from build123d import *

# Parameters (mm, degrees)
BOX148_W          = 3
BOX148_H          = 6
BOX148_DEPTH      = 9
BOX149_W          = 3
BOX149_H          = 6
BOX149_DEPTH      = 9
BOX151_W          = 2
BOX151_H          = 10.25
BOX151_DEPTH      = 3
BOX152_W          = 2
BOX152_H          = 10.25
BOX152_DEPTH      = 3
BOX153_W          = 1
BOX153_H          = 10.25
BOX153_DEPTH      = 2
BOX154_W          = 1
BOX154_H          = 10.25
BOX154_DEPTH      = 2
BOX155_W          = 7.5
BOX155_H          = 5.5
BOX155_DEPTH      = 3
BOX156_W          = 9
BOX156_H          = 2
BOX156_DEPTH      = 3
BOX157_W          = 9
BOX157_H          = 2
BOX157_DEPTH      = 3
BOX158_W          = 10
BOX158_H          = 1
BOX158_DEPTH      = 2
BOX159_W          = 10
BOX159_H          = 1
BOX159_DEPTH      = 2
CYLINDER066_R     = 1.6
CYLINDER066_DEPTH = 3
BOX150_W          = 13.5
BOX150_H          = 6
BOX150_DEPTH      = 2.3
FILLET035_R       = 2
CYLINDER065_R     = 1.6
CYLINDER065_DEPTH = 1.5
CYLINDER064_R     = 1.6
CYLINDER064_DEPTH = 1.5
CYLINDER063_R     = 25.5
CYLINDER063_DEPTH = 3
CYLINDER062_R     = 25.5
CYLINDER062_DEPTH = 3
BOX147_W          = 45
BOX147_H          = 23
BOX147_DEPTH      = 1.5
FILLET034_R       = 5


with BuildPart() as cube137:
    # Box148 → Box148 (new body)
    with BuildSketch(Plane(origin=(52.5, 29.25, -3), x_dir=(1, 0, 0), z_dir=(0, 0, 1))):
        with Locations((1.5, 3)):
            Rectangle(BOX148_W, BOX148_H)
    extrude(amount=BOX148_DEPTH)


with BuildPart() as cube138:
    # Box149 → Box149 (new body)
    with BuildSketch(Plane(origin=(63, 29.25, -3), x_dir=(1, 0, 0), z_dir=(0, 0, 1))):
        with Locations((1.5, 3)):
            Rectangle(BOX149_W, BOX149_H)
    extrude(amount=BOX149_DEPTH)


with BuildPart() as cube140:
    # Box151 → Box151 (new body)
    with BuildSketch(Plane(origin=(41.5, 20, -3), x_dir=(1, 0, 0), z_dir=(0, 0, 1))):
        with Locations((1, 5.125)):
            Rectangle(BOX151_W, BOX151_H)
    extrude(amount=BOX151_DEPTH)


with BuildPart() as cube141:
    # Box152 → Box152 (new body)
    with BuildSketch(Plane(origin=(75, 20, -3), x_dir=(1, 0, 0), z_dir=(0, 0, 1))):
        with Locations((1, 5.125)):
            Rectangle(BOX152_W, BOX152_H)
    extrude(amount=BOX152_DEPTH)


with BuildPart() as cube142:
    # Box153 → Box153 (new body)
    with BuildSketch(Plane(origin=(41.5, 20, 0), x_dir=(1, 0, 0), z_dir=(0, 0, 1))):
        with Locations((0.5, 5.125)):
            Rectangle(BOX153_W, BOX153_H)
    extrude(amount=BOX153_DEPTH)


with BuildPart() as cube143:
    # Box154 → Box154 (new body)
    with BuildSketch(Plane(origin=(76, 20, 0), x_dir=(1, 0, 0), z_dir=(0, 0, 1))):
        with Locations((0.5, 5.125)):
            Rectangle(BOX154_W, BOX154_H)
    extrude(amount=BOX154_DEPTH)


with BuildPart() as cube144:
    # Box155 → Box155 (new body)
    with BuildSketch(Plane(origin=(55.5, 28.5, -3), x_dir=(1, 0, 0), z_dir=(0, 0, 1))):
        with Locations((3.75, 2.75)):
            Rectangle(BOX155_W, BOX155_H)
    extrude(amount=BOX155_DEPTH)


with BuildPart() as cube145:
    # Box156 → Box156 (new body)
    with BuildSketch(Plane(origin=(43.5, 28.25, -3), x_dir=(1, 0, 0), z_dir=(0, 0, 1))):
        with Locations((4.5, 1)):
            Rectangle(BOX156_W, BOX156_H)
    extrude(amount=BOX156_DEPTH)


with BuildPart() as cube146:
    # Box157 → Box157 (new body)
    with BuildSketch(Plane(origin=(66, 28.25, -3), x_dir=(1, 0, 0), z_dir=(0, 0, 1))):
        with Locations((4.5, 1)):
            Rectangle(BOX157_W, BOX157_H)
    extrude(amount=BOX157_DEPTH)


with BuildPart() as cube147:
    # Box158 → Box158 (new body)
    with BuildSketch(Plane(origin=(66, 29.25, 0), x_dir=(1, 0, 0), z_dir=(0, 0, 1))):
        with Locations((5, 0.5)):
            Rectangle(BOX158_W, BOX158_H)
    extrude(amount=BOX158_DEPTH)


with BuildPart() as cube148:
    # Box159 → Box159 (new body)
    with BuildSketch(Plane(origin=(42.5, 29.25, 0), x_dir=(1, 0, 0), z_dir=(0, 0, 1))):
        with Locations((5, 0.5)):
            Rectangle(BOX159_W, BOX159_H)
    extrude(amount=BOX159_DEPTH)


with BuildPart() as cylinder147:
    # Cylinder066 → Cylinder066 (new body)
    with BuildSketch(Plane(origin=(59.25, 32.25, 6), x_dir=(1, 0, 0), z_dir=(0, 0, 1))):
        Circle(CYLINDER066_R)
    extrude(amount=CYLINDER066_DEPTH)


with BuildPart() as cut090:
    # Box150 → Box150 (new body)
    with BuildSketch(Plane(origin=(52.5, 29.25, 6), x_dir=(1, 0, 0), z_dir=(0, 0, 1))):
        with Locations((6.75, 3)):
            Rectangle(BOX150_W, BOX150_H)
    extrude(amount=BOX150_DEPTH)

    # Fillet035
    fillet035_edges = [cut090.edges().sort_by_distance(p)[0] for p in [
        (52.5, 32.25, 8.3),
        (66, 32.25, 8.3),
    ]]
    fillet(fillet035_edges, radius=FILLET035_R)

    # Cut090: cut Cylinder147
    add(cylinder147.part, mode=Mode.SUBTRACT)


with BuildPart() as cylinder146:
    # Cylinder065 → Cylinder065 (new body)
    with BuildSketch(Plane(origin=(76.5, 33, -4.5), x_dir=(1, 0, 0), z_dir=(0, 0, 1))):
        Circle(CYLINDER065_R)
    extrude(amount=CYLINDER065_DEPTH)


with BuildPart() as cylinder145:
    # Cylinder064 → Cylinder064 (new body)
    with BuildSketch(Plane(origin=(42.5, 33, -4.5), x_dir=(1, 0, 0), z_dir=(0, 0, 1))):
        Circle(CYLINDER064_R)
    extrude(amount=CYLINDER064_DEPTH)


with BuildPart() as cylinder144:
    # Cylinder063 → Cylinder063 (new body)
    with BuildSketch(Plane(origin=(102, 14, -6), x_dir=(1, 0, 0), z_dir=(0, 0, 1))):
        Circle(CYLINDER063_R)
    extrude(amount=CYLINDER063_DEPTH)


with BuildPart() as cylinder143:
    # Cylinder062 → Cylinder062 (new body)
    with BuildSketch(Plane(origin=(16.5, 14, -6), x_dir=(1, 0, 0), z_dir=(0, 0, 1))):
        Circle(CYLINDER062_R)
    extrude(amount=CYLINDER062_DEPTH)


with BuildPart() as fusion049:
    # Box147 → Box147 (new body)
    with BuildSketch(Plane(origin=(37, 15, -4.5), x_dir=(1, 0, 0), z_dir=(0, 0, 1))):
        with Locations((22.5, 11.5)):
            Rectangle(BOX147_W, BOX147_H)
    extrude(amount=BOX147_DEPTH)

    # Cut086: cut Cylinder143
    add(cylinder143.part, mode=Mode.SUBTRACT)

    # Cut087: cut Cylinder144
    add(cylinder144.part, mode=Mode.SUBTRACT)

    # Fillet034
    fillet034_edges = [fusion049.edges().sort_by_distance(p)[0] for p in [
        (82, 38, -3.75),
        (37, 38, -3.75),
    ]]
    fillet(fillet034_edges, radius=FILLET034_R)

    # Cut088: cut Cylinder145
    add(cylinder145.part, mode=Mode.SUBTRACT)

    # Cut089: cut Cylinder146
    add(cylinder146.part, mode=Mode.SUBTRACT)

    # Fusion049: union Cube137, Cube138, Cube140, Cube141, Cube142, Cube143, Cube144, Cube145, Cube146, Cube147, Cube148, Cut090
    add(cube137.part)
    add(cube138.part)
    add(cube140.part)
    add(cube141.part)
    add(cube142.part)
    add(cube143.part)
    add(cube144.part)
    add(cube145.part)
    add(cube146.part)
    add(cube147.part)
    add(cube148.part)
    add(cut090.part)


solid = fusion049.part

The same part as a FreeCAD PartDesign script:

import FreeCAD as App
import Part
import Sketcher


def edges_at(feature, points):
    """Names of the edges that pass closest to the given points."""
    edges = feature.Shape.Edges
    near = lambda p: min(range(len(edges)), key=lambda i: edges[i].distToShape(Part.Vertex(*p))[0])
    return sorted({f"Edge{near(p) + 1}" for p in points})


def add_polygon(sketch, points):
    """Adds a closed chain of lines whose ends are joined by coincident constraints."""
    first, n = sketch.GeometryCount, len(points)
    for a, b in zip(points, points[1:] + points[:1]):
        sketch.addGeometry(Part.LineSegment(App.Vector(*a, 0), App.Vector(*b, 0)), False)
    for i in range(n):
        sketch.addConstraint(Sketcher.Constraint("Coincident", first + i, 2, first + (i + 1) % n, 1))

doc = App.newDocument("Part")
body = doc.addObject("PartDesign::Body", "Body")

sketch1 = body.newObject("Sketcher::SketchObject", "Sketch")
sketch1.AttachmentSupport = (doc.getObject("XY_Plane"), [""])
sketch1.MapMode = "FlatFace"
sketch1.AttachmentOffset = App.Placement(App.Vector(0, 0, -3), App.Rotation())
add_polygon(sketch1, [(52.5, 35.25), (52.5, 29.25), (55.5, 29.25), (55.5, 35.25)])
sketch1.addConstraint([
    Sketcher.Constraint("Vertical", 0),
    Sketcher.Constraint("Horizontal", 1),
    Sketcher.Constraint("Vertical", 2),
    Sketcher.Constraint("Horizontal", 3),
    Sketcher.Constraint("DistanceX", 1, 1, 1, 2, 3.0),
    Sketcher.Constraint("DistanceY", 0, 2, 0, 1, 6.0),
    Sketcher.Constraint("DistanceX", -1, 1, 0, 2, 52.5),
    Sketcher.Constraint("DistanceY", -1, 1, 0, 2, 29.25),
])
pad1 = body.newObject("PartDesign::Pad", "Pad")
pad1.Profile = sketch1
pad1.Length = 9
body2 = doc.addObject("PartDesign::Body", "Body001")

sketch2 = body2.newObject("Sketcher::SketchObject", "Sketch001")
sketch2.AttachmentSupport = (doc.getObject("XY_Plane001"), [""])
sketch2.MapMode = "FlatFace"
sketch2.AttachmentOffset = App.Placement(App.Vector(0, 0, -3), App.Rotation())
add_polygon(sketch2, [(63, 35.25), (63, 29.25), (66, 29.25), (66, 35.25)])
sketch2.addConstraint([
    Sketcher.Constraint("Vertical", 0),
    Sketcher.Constraint("Horizontal", 1),
    Sketcher.Constraint("Vertical", 2),
    Sketcher.Constraint("Horizontal", 3),
    Sketcher.Constraint("DistanceX", 1, 1, 1, 2, 3.0),
    Sketcher.Constraint("DistanceY", 0, 2, 0, 1, 6.0),
    Sketcher.Constraint("DistanceX", -1, 1, 0, 2, 63.0),
    Sketcher.Constraint("DistanceY", -1, 1, 0, 2, 29.25),
])
pad2 = body2.newObject("PartDesign::Pad", "Pad001")
pad2.Profile = sketch2
pad2.Length = 9
body3 = doc.addObject("PartDesign::Body", "Body002")

sketch3 = body3.newObject("Sketcher::SketchObject", "Sketch002")
sketch3.AttachmentSupport = (doc.getObject("XY_Plane002"), [""])
sketch3.MapMode = "FlatFace"
sketch3.AttachmentOffset = App.Placement(App.Vector(0, 0, -3), App.Rotation())
add_polygon(sketch3, [(41.5, 30.25), (41.5, 20), (43.5, 20), (43.5, 30.25)])
sketch3.addConstraint([
    Sketcher.Constraint("Vertical", 0),
    Sketcher.Constraint("Horizontal", 1),
    Sketcher.Constraint("Vertical", 2),
    Sketcher.Constraint("Horizontal", 3),
    Sketcher.Constraint("DistanceX", 1, 1, 1, 2, 2.0),
    Sketcher.Constraint("DistanceY", -1, 1, 0, 2, 20.0),
    Sketcher.Constraint("DistanceY", 0, 2, 0, 1, 10.25),
    Sketcher.Constraint("DistanceX", -1, 1, 0, 2, 41.5),
])
pad3 = body3.newObject("PartDesign::Pad", "Pad002")
pad3.Profile = sketch3
pad3.Length = 3
body4 = doc.addObject("PartDesign::Body", "Body003")

sketch4 = body4.newObject("Sketcher::SketchObject", "Sketch003")
sketch4.AttachmentSupport = (doc.getObject("XY_Plane003"), [""])
sketch4.MapMode = "FlatFace"
sketch4.AttachmentOffset = App.Placement(App.Vector(0, 0, -3), App.Rotation())
add_polygon(sketch4, [(75, 30.25), (75, 20), (77, 20), (77, 30.25)])
sketch4.addConstraint([
    Sketcher.Constraint("Vertical", 0),
    Sketcher.Constraint("Horizontal", 1),
    Sketcher.Constraint("Vertical", 2),
    Sketcher.Constraint("Horizontal", 3),
    Sketcher.Constraint("DistanceX", 1, 1, 1, 2, 2.0),
    Sketcher.Constraint("DistanceX", -1, 1, 0, 2, 75.0),
    Sketcher.Constraint("DistanceY", -1, 1, 0, 2, 20.0),
    Sketcher.Constraint("DistanceY", 0, 2, 0, 1, 10.25),
])
pad4 = body4.newObject("PartDesign::Pad", "Pad003")
pad4.Profile = sketch4
pad4.Length = 3
body5 = doc.addObject("PartDesign::Body", "Body004")

sketch5 = body5.newObject("Sketcher::SketchObject", "Sketch004")
sketch5.AttachmentSupport = (doc.getObject("XY_Plane004"), [""])
sketch5.MapMode = "FlatFace"
add_polygon(sketch5, [(41.5, 30.25), (41.5, 20), (42.5, 20), (42.5, 30.25)])
sketch5.addConstraint([
    Sketcher.Constraint("Vertical", 0),
    Sketcher.Constraint("Horizontal", 1),
    Sketcher.Constraint("Vertical", 2),
    Sketcher.Constraint("Horizontal", 3),
    Sketcher.Constraint("DistanceX", 1, 1, 1, 2, 1.0),
    Sketcher.Constraint("DistanceY", -1, 1, 0, 2, 20.0),
    Sketcher.Constraint("DistanceY", 0, 2, 0, 1, 10.25),
    Sketcher.Constraint("DistanceX", -1, 1, 0, 2, 41.5),
])
pad5 = body5.newObject("PartDesign::Pad", "Pad004")
pad5.Profile = sketch5
pad5.Length = 2
body6 = doc.addObject("PartDesign::Body", "Body005")

sketch6 = body6.newObject("Sketcher::SketchObject", "Sketch005")
sketch6.AttachmentSupport = (doc.getObject("XY_Plane005"), [""])
sketch6.MapMode = "FlatFace"
add_polygon(sketch6, [(76, 30.25), (76, 20), (77, 20), (77, 30.25)])
sketch6.addConstraint([
    Sketcher.Constraint("Vertical", 0),
    Sketcher.Constraint("Horizontal", 1),
    Sketcher.Constraint("Vertical", 2),
    Sketcher.Constraint("Horizontal", 3),
    Sketcher.Constraint("DistanceX", 1, 1, 1, 2, 1.0),
    Sketcher.Constraint("DistanceX", -1, 1, 0, 2, 76.0),
    Sketcher.Constraint("DistanceY", -1, 1, 0, 2, 20.0),
    Sketcher.Constraint("DistanceY", 0, 2, 0, 1, 10.25),
])
pad6 = body6.newObject("PartDesign::Pad", "Pad005")
pad6.Profile = sketch6
pad6.Length = 2
body7 = doc.addObject("PartDesign::Body", "Body006")

sketch7 = body7.newObject("Sketcher::SketchObject", "Sketch006")
sketch7.AttachmentSupport = (doc.getObject("XY_Plane006"), [""])
sketch7.MapMode = "FlatFace"
sketch7.AttachmentOffset = App.Placement(App.Vector(0, 0, -3), App.Rotation())
add_polygon(sketch7, [(55.5, 34), (55.5, 28.5), (63, 28.5), (63, 34)])
sketch7.addConstraint([
    Sketcher.Constraint("Vertical", 0),
    Sketcher.Constraint("Horizontal", 1),
    Sketcher.Constraint("Vertical", 2),
    Sketcher.Constraint("Horizontal", 3),
    Sketcher.Constraint("DistanceX", 1, 1, 1, 2, 7.5),
    Sketcher.Constraint("DistanceY", 0, 2, 0, 1, 5.5),
    Sketcher.Constraint("DistanceX", -1, 1, 1, 2, 63.0),
    Sketcher.Constraint("DistanceY", -1, 1, 2, 2, 34.0),
])
pad7 = body7.newObject("PartDesign::Pad", "Pad006")
pad7.Profile = sketch7
pad7.Length = 3
body8 = doc.addObject("PartDesign::Body", "Body007")

sketch8 = body8.newObject("Sketcher::SketchObject", "Sketch007")
sketch8.AttachmentSupport = (doc.getObject("XY_Plane007"), [""])
sketch8.MapMode = "FlatFace"
sketch8.AttachmentOffset = App.Placement(App.Vector(0, 0, -3), App.Rotation())
add_polygon(sketch8, [(43.5, 30.25), (43.5, 28.25), (52.5, 28.25), (52.5, 30.25)])
sketch8.addConstraint([
    Sketcher.Constraint("Vertical", 0),
    Sketcher.Constraint("Horizontal", 1),
    Sketcher.Constraint("Vertical", 2),
    Sketcher.Constraint("Horizontal", 3),
    Sketcher.Constraint("DistanceX", 1, 1, 1, 2, 9.0),
    Sketcher.Constraint("DistanceY", 0, 2, 0, 1, 2.0),
    Sketcher.Constraint("DistanceX", -1, 1, 0, 2, 43.5),
    Sketcher.Constraint("DistanceY", -1, 1, 0, 2, 28.25),
])
pad8 = body8.newObject("PartDesign::Pad", "Pad007")
pad8.Profile = sketch8
pad8.Length = 3
body9 = doc.addObject("PartDesign::Body", "Body008")

sketch9 = body9.newObject("Sketcher::SketchObject", "Sketch008")
sketch9.AttachmentSupport = (doc.getObject("XY_Plane008"), [""])
sketch9.MapMode = "FlatFace"
sketch9.AttachmentOffset = App.Placement(App.Vector(0, 0, -3), App.Rotation())
add_polygon(sketch9, [(66, 30.25), (66, 28.25), (75, 28.25), (75, 30.25)])
sketch9.addConstraint([
    Sketcher.Constraint("Vertical", 0),
    Sketcher.Constraint("Horizontal", 1),
    Sketcher.Constraint("Vertical", 2),
    Sketcher.Constraint("Horizontal", 3),
    Sketcher.Constraint("DistanceX", 1, 1, 1, 2, 9.0),
    Sketcher.Constraint("DistanceY", 0, 2, 0, 1, 2.0),
    Sketcher.Constraint("DistanceX", -1, 1, 0, 2, 66.0),
    Sketcher.Constraint("DistanceY", -1, 1, 0, 2, 28.25),
])
pad9 = body9.newObject("PartDesign::Pad", "Pad008")
pad9.Profile = sketch9
pad9.Length = 3
body10 = doc.addObject("PartDesign::Body", "Body009")

sketch10 = body10.newObject("Sketcher::SketchObject", "Sketch009")
sketch10.AttachmentSupport = (doc.getObject("XY_Plane009"), [""])
sketch10.MapMode = "FlatFace"
add_polygon(sketch10, [(66, 30.25), (66, 29.25), (76, 29.25), (76, 30.25)])
sketch10.addConstraint([
    Sketcher.Constraint("Vertical", 0),
    Sketcher.Constraint("Horizontal", 1),
    Sketcher.Constraint("Vertical", 2),
    Sketcher.Constraint("Horizontal", 3),
    Sketcher.Constraint("DistanceX", 1, 1, 1, 2, 10.0),
    Sketcher.Constraint("DistanceY", 0, 2, 0, 1, 1.0),
    Sketcher.Constraint("DistanceX", -1, 1, 0, 2, 66.0),
    Sketcher.Constraint("DistanceY", -1, 1, 0, 2, 29.25),
])
pad10 = body10.newObject("PartDesign::Pad", "Pad009")
pad10.Profile = sketch10
pad10.Length = 2
body11 = doc.addObject("PartDesign::Body", "Body010")

sketch11 = body11.newObject("Sketcher::SketchObject", "Sketch010")
sketch11.AttachmentSupport = (doc.getObject("XY_Plane010"), [""])
sketch11.MapMode = "FlatFace"
add_polygon(sketch11, [(42.5, 30.25), (42.5, 29.25), (52.5, 29.25), (52.5, 30.25)])
sketch11.addConstraint([
    Sketcher.Constraint("Vertical", 0),
    Sketcher.Constraint("Horizontal", 1),
    Sketcher.Constraint("Vertical", 2),
    Sketcher.Constraint("Horizontal", 3),
    Sketcher.Constraint("DistanceX", 1, 1, 1, 2, 10.0),
    Sketcher.Constraint("DistanceY", 0, 2, 0, 1, 1.0),
    Sketcher.Constraint("DistanceX", -1, 1, 0, 2, 42.5),
    Sketcher.Constraint("DistanceY", -1, 1, 0, 2, 29.25),
])
pad11 = body11.newObject("PartDesign::Pad", "Pad010")
pad11.Profile = sketch11
pad11.Length = 2
body12 = doc.addObject("PartDesign::Body", "Body011")

sketch12 = body12.newObject("Sketcher::SketchObject", "Sketch011")
sketch12.AttachmentSupport = (doc.getObject("XY_Plane011"), [""])
sketch12.MapMode = "FlatFace"
sketch12.AttachmentOffset = App.Placement(App.Vector(0, 0, 6), App.Rotation())
sketch12.addGeometry(Part.Circle(App.Vector(59.25, 32.25, 0), App.Vector(0, 0, 1), 1.6), False)
sketch12.addConstraint([
    Sketcher.Constraint("Diameter", 0, 3.2),
    Sketcher.Constraint("DistanceX", -1, 1, 0, 3, 59.25),
    Sketcher.Constraint("DistanceY", -1, 1, 0, 3, 32.25),
])
pad12 = body12.newObject("PartDesign::Pad", "Pad011")
pad12.Profile = sketch12
pad12.Length = 3
body13 = doc.addObject("PartDesign::Body", "Body012")

sketch13 = body13.newObject("Sketcher::SketchObject", "Sketch012")
sketch13.AttachmentSupport = (doc.getObject("XY_Plane012"), [""])
sketch13.MapMode = "FlatFace"
sketch13.AttachmentOffset = App.Placement(App.Vector(0, 0, 6), App.Rotation())
add_polygon(sketch13, [(52.5, 35.25), (52.5, 29.25), (66, 29.25), (66, 35.25)])
sketch13.addConstraint([
    Sketcher.Constraint("Vertical", 0),
    Sketcher.Constraint("Horizontal", 1),
    Sketcher.Constraint("Vertical", 2),
    Sketcher.Constraint("Horizontal", 3),
    Sketcher.Constraint("DistanceY", 0, 2, 0, 1, 6.0),
    Sketcher.Constraint("DistanceX", 1, 1, 1, 2, 13.5),
    Sketcher.Constraint("DistanceX", -1, 1, 1, 2, 66.0),
    Sketcher.Constraint("DistanceY", -1, 1, 0, 2, 29.25),
])
pad13 = body13.newObject("PartDesign::Pad", "Pad012")
pad13.Profile = sketch13
pad13.Length = 2.3
doc.recompute()

fillet = body13.newObject("PartDesign::Fillet", "Fillet")
fillet.Base = (pad13, edges_at(pad13, [(52.5, 32.25, 8.3), (66, 32.25, 8.3)]))
fillet.Radius = 2
doc.recompute()

boolean = body13.newObject("PartDesign::Boolean", "Boolean")
boolean.Type = "Cut"
boolean.addObjects([body12])
body14 = doc.addObject("PartDesign::Body", "Body013")

sketch14 = body14.newObject("Sketcher::SketchObject", "Sketch013")
sketch14.AttachmentSupport = (doc.getObject("XY_Plane013"), [""])
sketch14.MapMode = "FlatFace"
sketch14.AttachmentOffset = App.Placement(App.Vector(0, 0, -4.5), App.Rotation())
sketch14.addGeometry(Part.Circle(App.Vector(76.5, 33, 0), App.Vector(0, 0, 1), 1.6), False)
sketch14.addConstraint([
    Sketcher.Constraint("Diameter", 0, 3.2),
    Sketcher.Constraint("DistanceY", -1, 1, 0, 3, 33.0),
    Sketcher.Constraint("DistanceX", -1, 1, 0, 3, 76.5),
])
pad14 = body14.newObject("PartDesign::Pad", "Pad013")
pad14.Profile = sketch14
pad14.Length = 1.5
body15 = doc.addObject("PartDesign::Body", "Body014")

sketch15 = body15.newObject("Sketcher::SketchObject", "Sketch014")
sketch15.AttachmentSupport = (doc.getObject("XY_Plane014"), [""])
sketch15.MapMode = "FlatFace"
sketch15.AttachmentOffset = App.Placement(App.Vector(0, 0, -4.5), App.Rotation())
sketch15.addGeometry(Part.Circle(App.Vector(42.5, 33, 0), App.Vector(0, 0, 1), 1.6), False)
sketch15.addConstraint([
    Sketcher.Constraint("Diameter", 0, 3.2),
    Sketcher.Constraint("DistanceY", -1, 1, 0, 3, 33.0),
    Sketcher.Constraint("DistanceX", -1, 1, 0, 3, 42.5),
])
pad15 = body15.newObject("PartDesign::Pad", "Pad014")
pad15.Profile = sketch15
pad15.Length = 1.5
body16 = doc.addObject("PartDesign::Body", "Body015")

sketch16 = body16.newObject("Sketcher::SketchObject", "Sketch015")
sketch16.AttachmentSupport = (doc.getObject("XY_Plane015"), [""])
sketch16.MapMode = "FlatFace"
sketch16.AttachmentOffset = App.Placement(App.Vector(0, 0, -6), App.Rotation())
sketch16.addGeometry(Part.Circle(App.Vector(102, 14, 0), App.Vector(0, 0, 1), 25.5), False)
sketch16.addConstraint([
    Sketcher.Constraint("Diameter", 0, 51.0),
    Sketcher.Constraint("DistanceX", -1, 1, 0, 3, 102.0),
    Sketcher.Constraint("DistanceY", -1, 1, 0, 3, 14.0),
])
pad16 = body16.newObject("PartDesign::Pad", "Pad015")
pad16.Profile = sketch16
pad16.Length = 3
body17 = doc.addObject("PartDesign::Body", "Body016")

sketch17 = body17.newObject("Sketcher::SketchObject", "Sketch016")
sketch17.AttachmentSupport = (doc.getObject("XY_Plane016"), [""])
sketch17.MapMode = "FlatFace"
sketch17.AttachmentOffset = App.Placement(App.Vector(0, 0, -6), App.Rotation())
sketch17.addGeometry(Part.Circle(App.Vector(16.5, 14, 0), App.Vector(0, 0, 1), 25.5), False)
sketch17.addConstraint([
    Sketcher.Constraint("Diameter", 0, 51.0),
    Sketcher.Constraint("DistanceY", -1, 1, 0, 3, 14.0),
    Sketcher.Constraint("DistanceX", -1, 1, 0, 3, 16.5),
])
pad17 = body17.newObject("PartDesign::Pad", "Pad016")
pad17.Profile = sketch17
pad17.Length = 3
body18 = doc.addObject("PartDesign::Body", "Body017")

sketch18 = body18.newObject("Sketcher::SketchObject", "Sketch017")
sketch18.AttachmentSupport = (doc.getObject("XY_Plane017"), [""])
sketch18.MapMode = "FlatFace"
sketch18.AttachmentOffset = App.Placement(App.Vector(0, 0, -4.5), App.Rotation())
add_polygon(sketch18, [(37, 38), (37, 15), (82, 15), (82, 38)])
sketch18.addConstraint([
    Sketcher.Constraint("Vertical", 0),
    Sketcher.Constraint("Horizontal", 1),
    Sketcher.Constraint("Vertical", 2),
    Sketcher.Constraint("Horizontal", 3),
    Sketcher.Constraint("DistanceX", 1, 1, 1, 2, 45.0),
    Sketcher.Constraint("DistanceY", 0, 2, 0, 1, 23.0),
    Sketcher.Constraint("DistanceX", -1, 1, 0, 2, 37.0),
    Sketcher.Constraint("DistanceY", -1, 1, 0, 2, 15.0),
])
pad18 = body18.newObject("PartDesign::Pad", "Pad017")
pad18.Profile = sketch18
pad18.Length = 1.5
doc.recompute()

boolean2 = body18.newObject("PartDesign::Boolean", "Boolean001")
boolean2.Type = "Cut"
boolean2.addObjects([body17])
doc.recompute()

boolean3 = body18.newObject("PartDesign::Boolean", "Boolean002")
boolean3.Type = "Cut"
boolean3.addObjects([body16])
doc.recompute()

fillet2 = body18.newObject("PartDesign::Fillet", "Fillet001")
fillet2.Base = (boolean3, edges_at(boolean3, [(82, 38, -3.75), (37, 38, -3.75)]))
fillet2.Radius = 5
doc.recompute()

boolean4 = body18.newObject("PartDesign::Boolean", "Boolean003")
boolean4.Type = "Cut"
boolean4.addObjects([body15])
doc.recompute()

boolean5 = body18.newObject("PartDesign::Boolean", "Boolean004")
boolean5.Type = "Cut"
boolean5.addObjects([body14])
doc.recompute()

boolean6 = body18.newObject("PartDesign::Boolean", "Boolean005")
boolean6.Type = "Fuse"
boolean6.addObjects([body])
doc.recompute()

boolean7 = body18.newObject("PartDesign::Boolean", "Boolean006")
boolean7.Type = "Fuse"
boolean7.addObjects([body2])
doc.recompute()

boolean8 = body18.newObject("PartDesign::Boolean", "Boolean007")
boolean8.Type = "Fuse"
boolean8.addObjects([body3])
doc.recompute()

boolean9 = body18.newObject("PartDesign::Boolean", "Boolean008")
boolean9.Type = "Fuse"
boolean9.addObjects([body4])
doc.recompute()

boolean10 = body18.newObject("PartDesign::Boolean", "Boolean009")
boolean10.Type = "Fuse"
boolean10.addObjects([body5])
doc.recompute()

boolean11 = body18.newObject("PartDesign::Boolean", "Boolean010")
boolean11.Type = "Fuse"
boolean11.addObjects([body6])
doc.recompute()

boolean12 = body18.newObject("PartDesign::Boolean", "Boolean011")
boolean12.Type = "Fuse"
boolean12.addObjects([body7])
doc.recompute()

boolean13 = body18.newObject("PartDesign::Boolean", "Boolean012")
boolean13.Type = "Fuse"
boolean13.addObjects([body8])
doc.recompute()

boolean14 = body18.newObject("PartDesign::Boolean", "Boolean013")
boolean14.Type = "Fuse"
boolean14.addObjects([body9])
doc.recompute()

boolean15 = body18.newObject("PartDesign::Boolean", "Boolean014")
boolean15.Type = "Fuse"
boolean15.addObjects([body10])
doc.recompute()

boolean16 = body18.newObject("PartDesign::Boolean", "Boolean015")
boolean16.Type = "Fuse"
boolean16.addObjects([body11])
doc.recompute()

boolean17 = body18.newObject("PartDesign::Boolean", "Boolean016")
boolean17.Type = "Fuse"
boolean17.addObjects([body13])

doc.recompute()
